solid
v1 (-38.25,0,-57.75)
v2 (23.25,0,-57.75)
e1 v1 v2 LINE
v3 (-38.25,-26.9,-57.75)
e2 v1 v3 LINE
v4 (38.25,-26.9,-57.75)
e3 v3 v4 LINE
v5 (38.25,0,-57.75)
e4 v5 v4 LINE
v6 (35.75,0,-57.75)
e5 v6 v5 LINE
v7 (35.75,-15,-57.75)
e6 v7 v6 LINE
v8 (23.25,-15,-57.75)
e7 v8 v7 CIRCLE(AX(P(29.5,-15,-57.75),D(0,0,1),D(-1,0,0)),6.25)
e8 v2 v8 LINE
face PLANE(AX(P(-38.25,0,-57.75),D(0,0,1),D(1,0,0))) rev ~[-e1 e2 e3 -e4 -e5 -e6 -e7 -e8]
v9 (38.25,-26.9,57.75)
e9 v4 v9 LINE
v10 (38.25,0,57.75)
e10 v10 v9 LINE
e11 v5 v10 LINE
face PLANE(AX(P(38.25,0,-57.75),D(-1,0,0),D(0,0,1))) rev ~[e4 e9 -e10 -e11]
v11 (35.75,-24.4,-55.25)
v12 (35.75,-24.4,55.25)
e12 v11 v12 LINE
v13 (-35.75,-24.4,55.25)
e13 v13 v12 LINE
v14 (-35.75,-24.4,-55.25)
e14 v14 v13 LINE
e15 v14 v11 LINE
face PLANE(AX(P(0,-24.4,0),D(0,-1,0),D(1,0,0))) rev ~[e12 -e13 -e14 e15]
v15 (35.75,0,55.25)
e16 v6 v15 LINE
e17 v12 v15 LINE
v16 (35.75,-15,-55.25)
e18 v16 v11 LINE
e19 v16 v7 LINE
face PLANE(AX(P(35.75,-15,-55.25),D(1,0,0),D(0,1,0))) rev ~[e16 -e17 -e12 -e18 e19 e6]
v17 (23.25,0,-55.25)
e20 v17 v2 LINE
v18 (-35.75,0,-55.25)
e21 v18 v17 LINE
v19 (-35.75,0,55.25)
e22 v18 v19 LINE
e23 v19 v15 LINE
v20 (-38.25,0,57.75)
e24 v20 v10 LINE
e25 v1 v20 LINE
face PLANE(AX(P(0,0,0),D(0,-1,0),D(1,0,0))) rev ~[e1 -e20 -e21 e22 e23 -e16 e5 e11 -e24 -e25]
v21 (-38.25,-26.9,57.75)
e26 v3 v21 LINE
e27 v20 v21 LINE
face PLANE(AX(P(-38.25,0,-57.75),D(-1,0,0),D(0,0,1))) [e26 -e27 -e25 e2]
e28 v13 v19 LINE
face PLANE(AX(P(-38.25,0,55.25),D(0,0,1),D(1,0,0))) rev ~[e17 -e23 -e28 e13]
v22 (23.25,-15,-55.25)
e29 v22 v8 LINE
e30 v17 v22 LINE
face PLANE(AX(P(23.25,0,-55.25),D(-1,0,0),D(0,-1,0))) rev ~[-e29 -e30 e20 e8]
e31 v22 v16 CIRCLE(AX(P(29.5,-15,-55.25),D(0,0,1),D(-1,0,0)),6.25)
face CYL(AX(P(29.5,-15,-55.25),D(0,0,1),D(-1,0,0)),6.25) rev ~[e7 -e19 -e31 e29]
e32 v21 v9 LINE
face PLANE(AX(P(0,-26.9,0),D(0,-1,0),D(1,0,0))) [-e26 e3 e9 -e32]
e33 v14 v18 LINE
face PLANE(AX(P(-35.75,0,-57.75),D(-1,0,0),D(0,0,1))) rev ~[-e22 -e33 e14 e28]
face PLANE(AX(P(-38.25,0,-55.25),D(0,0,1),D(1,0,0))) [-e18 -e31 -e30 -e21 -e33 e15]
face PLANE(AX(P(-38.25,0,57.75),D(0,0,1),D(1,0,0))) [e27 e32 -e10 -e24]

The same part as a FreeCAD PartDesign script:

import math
import FreeCAD as App
import Part
import Sketcher


def faces_at(feature, points):
    """Names of the faces that lie closest to the given points."""
    faces = feature.Shape.Faces
    near = lambda p: min(range(len(faces)), key=lambda i: faces[i].distToShape(Part.Vertex(*p))[0])
    return sorted({f"Face{near(p) + 1}" for p in points})

doc = App.newDocument("Part")
body = doc.addObject("PartDesign::Body", "Body")

sketch1 = body.newObject("Sketcher::SketchObject", "Sketch")
sketch1.AttachmentSupport = (doc.getObject("XZ_Plane"), [""])
sketch1.MapMode = "FlatFace"
sketch1.addGeometry([
    Part.LineSegment(App.Vector(-38, 58, 0), App.Vector(-38, -58, 0)),
    Part.LineSegment(App.Vector(-38, -58, 0), App.Vector(38, -58, 0)),
    Part.LineSegment(App.Vector(38, -58, 0), App.Vector(38, 58, 0)),
    Part.LineSegment(App.Vector(38, 58, 0), App.Vector(-38, 58, 0)),
], False)
sketch1.addConstraint([
    Sketcher.Constraint("Coincident", 0, 2, 1, 1),
    Sketcher.Constraint("Coincident", 1, 2, 2, 1),
    Sketcher.Constraint("Coincident", 2, 2, 3, 1),
    Sketcher.Constraint("Coincident", 3, 2, 0, 1),
    Sketcher.Constraint("Vertical", 0),
    Sketcher.Constraint("Horizontal", 1),
    Sketcher.Constraint("Vertical", 2),
    Sketcher.Constraint("Horizontal", 3),
    Sketcher.Constraint("Symmetric", 0, 2, 2, 2, -1, 1),
    Sketcher.Constraint("DistanceX", 1, 1, 1, 2, 76.5),
    Sketcher.Constraint("DistanceY", 0, 2, 0, 1, 115.5),
])
pad1 = body.newObject("PartDesign::Pad", "Pad")
pad1.Profile = sketch1
pad1.Length = 26.9
doc.recompute()

thickness = body.newObject("PartDesign::Thickness", "Thickness")
thickness.Base = (pad1, faces_at(pad1, [(0, 0, 0)]))
thickness.Value = 2.5
thickness.Reversed = True
thickness.Join = "Arc"

sketch2 = body.newObject("Sketcher::SketchObject", "Sketch001")
sketch2.AttachmentSupport = (doc.getObject("XY_Plane"), [""])
sketch2.MapMode = "FlatFace"
sketch2.AttachmentOffset = App.Placement(App.Vector(0, 0, -55.25), App.Rotation())
sketch2.addGeometry([
    Part.LineSegment(App.Vector(36, -15, 0), App.Vector(36, 0, 0)),
    Part.LineSegment(App.Vector(36, 0, 0), App.Vector(23, 0, 0)),
    Part.LineSegment(App.Vector(23, 0, 0), App.Vector(23, -15, 0)),
    Part.ArcOfCircle(Part.Circle(App.Vector(30, -15, 0), App.Vector(0, 0, 1), 6), math.radians(180), math.radians(360)),
], False)
sketch2.addConstraint([
    Sketcher.Constraint("Coincident", 0, 2, 1, 1),
    Sketcher.Constraint("Coincident", 1, 2, 2, 1),
    Sketcher.Constraint("Tangent", 2, 2, 3, 1),
    Sketcher.Constraint("Tangent", 3, 2, 0, 1),
    Sketcher.Constraint("Vertical", 0),
    Sketcher.Constraint("Horizontal", 1),
    Sketcher.Constraint("Vertical", 2),
    Sketcher.Constraint("PointOnObject", 0, 2, -1),
    Sketcher.Constraint("DistanceY", 0, 1, 0, 2, 15.0),
    Sketcher.Constraint("Radius", 3, 6.25),
    Sketcher.Constraint("DistanceX", -1, 1, 3, 3, 29.5),
])
pocket1 = body.newObject("PartDesign::Pocket", "Pocket")
pocket1.Profile = sketch2
pocket1.Length = 25

doc.recompute()
